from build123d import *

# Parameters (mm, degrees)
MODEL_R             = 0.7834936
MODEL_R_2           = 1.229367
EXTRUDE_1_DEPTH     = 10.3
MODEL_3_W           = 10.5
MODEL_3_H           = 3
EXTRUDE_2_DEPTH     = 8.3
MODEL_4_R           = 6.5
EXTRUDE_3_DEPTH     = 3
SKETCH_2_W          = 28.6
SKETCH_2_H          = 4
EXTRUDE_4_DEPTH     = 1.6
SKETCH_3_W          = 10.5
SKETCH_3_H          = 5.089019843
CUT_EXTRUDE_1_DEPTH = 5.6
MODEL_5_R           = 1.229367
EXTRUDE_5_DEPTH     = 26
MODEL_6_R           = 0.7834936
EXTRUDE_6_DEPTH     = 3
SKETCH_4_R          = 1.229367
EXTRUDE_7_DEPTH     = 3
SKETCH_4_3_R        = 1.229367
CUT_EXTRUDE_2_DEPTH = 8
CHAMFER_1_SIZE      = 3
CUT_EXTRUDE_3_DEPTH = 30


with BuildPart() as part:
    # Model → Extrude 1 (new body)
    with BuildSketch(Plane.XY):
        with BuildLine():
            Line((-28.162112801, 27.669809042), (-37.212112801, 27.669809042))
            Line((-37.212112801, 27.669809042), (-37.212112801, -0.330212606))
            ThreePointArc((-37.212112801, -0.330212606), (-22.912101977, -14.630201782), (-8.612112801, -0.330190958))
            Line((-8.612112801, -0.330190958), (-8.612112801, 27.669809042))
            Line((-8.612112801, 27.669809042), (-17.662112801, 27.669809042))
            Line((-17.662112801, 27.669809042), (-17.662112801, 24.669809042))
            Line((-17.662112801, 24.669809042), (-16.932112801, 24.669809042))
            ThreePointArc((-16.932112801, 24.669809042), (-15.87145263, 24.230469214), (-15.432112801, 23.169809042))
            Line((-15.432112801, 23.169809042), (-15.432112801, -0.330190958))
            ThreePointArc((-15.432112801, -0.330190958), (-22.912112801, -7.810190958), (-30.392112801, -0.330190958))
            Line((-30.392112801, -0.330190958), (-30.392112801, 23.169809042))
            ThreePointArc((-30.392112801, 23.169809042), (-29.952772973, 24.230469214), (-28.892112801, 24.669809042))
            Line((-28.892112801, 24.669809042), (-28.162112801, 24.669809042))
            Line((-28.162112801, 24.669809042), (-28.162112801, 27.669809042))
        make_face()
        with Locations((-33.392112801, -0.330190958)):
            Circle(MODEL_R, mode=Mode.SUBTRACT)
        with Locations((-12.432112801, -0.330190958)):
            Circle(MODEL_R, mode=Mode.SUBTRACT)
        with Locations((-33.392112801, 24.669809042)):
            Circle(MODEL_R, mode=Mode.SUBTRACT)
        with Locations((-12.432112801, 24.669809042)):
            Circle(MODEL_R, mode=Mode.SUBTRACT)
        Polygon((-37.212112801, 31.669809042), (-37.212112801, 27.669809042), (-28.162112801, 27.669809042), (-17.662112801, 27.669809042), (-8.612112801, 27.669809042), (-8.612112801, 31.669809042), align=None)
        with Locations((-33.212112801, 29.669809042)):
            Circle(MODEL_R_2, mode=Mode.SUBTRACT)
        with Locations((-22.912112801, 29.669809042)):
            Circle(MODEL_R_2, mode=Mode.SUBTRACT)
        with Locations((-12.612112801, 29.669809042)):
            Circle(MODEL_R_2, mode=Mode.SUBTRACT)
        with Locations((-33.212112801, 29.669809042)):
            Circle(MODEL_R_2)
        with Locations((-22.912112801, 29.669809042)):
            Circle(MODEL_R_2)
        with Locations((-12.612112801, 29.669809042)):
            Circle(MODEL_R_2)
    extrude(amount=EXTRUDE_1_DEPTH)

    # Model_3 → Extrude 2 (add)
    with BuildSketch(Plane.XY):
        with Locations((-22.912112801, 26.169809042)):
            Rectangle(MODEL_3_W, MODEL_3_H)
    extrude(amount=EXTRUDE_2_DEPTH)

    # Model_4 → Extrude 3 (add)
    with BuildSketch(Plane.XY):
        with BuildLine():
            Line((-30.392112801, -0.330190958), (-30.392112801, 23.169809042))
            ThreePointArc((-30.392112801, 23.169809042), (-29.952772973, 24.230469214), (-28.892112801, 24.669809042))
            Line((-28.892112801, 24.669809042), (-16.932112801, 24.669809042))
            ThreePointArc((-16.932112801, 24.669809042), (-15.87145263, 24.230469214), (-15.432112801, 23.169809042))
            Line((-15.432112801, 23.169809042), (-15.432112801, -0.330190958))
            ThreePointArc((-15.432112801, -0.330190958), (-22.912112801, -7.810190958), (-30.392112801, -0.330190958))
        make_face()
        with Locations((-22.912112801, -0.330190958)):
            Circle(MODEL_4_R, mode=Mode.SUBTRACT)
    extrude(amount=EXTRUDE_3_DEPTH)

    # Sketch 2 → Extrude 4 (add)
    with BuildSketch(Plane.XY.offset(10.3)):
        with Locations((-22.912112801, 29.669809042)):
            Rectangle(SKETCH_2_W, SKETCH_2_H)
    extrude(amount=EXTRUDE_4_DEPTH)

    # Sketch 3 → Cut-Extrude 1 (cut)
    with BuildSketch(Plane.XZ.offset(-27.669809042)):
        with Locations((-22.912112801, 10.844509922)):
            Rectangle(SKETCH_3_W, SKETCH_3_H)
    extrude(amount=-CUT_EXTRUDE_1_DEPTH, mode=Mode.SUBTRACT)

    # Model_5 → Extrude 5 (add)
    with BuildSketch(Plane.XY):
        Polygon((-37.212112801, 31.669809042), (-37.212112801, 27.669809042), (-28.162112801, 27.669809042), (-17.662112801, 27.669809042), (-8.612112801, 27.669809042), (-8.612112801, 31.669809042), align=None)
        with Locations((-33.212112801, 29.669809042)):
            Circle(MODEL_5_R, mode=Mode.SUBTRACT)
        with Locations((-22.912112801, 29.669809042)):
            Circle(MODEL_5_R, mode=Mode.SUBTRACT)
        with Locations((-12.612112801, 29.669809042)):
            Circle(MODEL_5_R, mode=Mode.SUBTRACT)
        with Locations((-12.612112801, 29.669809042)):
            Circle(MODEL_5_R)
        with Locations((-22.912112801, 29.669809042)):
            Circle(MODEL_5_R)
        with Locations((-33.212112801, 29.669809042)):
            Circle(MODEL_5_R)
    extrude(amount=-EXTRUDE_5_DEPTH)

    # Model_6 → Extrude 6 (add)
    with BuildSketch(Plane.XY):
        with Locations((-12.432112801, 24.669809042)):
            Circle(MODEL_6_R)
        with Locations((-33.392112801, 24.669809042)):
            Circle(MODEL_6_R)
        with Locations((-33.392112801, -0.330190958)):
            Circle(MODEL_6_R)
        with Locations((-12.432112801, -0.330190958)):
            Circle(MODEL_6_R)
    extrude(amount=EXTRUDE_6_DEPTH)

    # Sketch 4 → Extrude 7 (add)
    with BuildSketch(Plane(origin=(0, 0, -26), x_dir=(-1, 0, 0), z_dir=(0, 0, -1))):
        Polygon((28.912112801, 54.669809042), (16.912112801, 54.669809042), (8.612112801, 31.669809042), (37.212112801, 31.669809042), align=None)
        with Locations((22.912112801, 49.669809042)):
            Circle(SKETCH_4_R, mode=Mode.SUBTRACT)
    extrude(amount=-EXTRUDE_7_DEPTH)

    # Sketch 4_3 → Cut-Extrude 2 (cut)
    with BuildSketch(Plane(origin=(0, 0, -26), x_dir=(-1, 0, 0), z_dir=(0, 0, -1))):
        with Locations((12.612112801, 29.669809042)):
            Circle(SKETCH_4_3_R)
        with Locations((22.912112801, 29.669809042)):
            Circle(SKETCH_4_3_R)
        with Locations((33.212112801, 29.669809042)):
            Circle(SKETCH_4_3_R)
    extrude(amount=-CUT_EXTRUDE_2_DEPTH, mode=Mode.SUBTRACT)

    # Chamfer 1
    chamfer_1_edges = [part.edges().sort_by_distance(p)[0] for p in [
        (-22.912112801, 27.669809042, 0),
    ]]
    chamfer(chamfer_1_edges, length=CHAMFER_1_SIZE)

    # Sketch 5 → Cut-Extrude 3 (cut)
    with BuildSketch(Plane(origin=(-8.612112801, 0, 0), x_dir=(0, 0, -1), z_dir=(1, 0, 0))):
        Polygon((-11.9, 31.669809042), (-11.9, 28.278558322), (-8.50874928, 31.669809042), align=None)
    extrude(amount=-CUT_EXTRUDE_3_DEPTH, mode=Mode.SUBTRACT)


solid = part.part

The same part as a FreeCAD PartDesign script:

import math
import FreeCAD as App
import Part
import Sketcher

V = App.Vector


def edges_at(feature, points):
    """Names of the edges that pass closest to the given points."""
    edges = feature.Shape.Edges
    near = lambda p: min(range(len(edges)), key=lambda i: edges[i].distToShape(Part.Vertex(*p))[0])
    return sorted({f"Edge{near(p) + 1}" for p in points})


def add_polygon(sketch, points):
    """Adds a closed chain of lines whose ends are joined by coincident constraints."""
    first, n = sketch.GeometryCount, len(points)
    for a, b in zip(points, points[1:] + points[:1]):
        sketch.addGeometry(Part.LineSegment(App.Vector(*a, 0), App.Vector(*b, 0)), False)
    for i in range(n):
        sketch.addConstraint(Sketcher.Constraint("Coincident", first + i, 2, first + (i + 1) % n, 1))

doc = App.newDocument("Part")
body = doc.addObject("PartDesign::Body", "Body")

# Sketch on XY plane
sketch1 = body.newObject("Sketcher::SketchObject", "Sketch")
sketch1.AttachmentSupport = (doc.getObject("XY_Plane"), [""])
sketch1.MapMode = "FlatFace"
sketch1.addGeometry(Part.ArcOfCircle(Part.Circle(V(-22.912113, -0.330202, 0), V(0, 0, 1), 14.3), math.radians(-179.999957), math.radians(0.000043)), False)
sketch1.addGeometry(Part.LineSegment(V(-8.612113, -0.330191, 0), V(-8.612113, 31.669809, 0)), False)
sketch1.addGeometry(Part.LineSegment(V(-8.612113, 31.669809, 0), V(-37.212113, 31.669809, 0)), False)
sketch1.addGeometry(Part.LineSegment(V(-37.212113, 31.669809, 0), V(-37.212113, -0.330213, 0)), False)
sketch1.addGeometry(Part.Circle(V(-33.392113, -0.330191, 0), V(0, 0, 1), 0.783494), False)
sketch1.addGeometry(Part.Circle(V(-12.432113, -0.330191, 0), V(0, 0, 1), 0.783494), False)
sketch1.addGeometry(Part.LineSegment(V(-28.162113, 24.669809, 0), V(-28.162113, 27.669809, 0)), False)
sketch1.addGeometry(Part.LineSegment(V(-28.162113, 27.669809, 0), V(-17.662113, 27.669809, 0)), False)
sketch1.addGeometry(Part.LineSegment(V(-17.662113, 27.669809, 0), V(-17.662113, 24.669809, 0)), False)
sketch1.addGeometry(Part.LineSegment(V(-17.662113, 24.669809, 0), V(-16.932113, 24.669809, 0)), False)
sketch1.addGeometry(Part.ArcOfCircle(Part.Circle(V(-16.932113, 23.169809, 0), V(0, 0, 1), 1.5), math.radians(0), math.radians(90)), False)
sketch1.addGeometry(Part.LineSegment(V(-15.432113, 23.169809, 0), V(-15.432113, -0.330191, 0)), False)
sketch1.addGeometry(Part.ArcOfCircle(Part.Circle(V(-22.912113, -0.330191, 0), V(0, 0, 1), 7.48), math.radians(180), math.radians(360)), False)
sketch1.addGeometry(Part.LineSegment(V(-30.392113, -0.330191, 0), V(-30.392113, 23.169809, 0)), False)
sketch1.addGeometry(Part.ArcOfCircle(Part.Circle(V(-28.892113, 23.169809, 0), V(0, 0, 1), 1.5), math.radians(90), math.radians(180)), False)
sketch1.addGeometry(Part.LineSegment(V(-28.892113, 24.669809, 0), V(-28.162113, 24.669809, 0)), False)
sketch1.addGeometry(Part.Circle(V(-33.392113, 24.669809, 0), V(0, 0, 1), 0.783494), False)
sketch1.addGeometry(Part.Circle(V(-12.432113, 24.669809, 0), V(0, 0, 1), 0.783494), False)
sketch1.addConstraint(Sketcher.Constraint("Tangent", 0, 2, 1, 1))
sketch1.addConstraint(Sketcher.Constraint("Coincident", 1, 2, 2, 1))
sketch1.addConstraint(Sketcher.Constraint("Coincident", 2, 2, 3, 1))
sketch1.addConstraint(Sketcher.Constraint("Tangent", 3, 2, 0, 1))
sketch1.addConstraint(Sketcher.Constraint("Coincident", 6, 2, 7, 1))
sketch1.addConstraint(Sketcher.Constraint("Coincident", 7, 2, 8, 1))
sketch1.addConstraint(Sketcher.Constraint("Coincident", 8, 2, 9, 1))
sketch1.addConstraint(Sketcher.Constraint("Tangent", 9, 2, 10, 2))
sketch1.addConstraint(Sketcher.Constraint("Tangent", 10, 1, 11, 1))
sketch1.addConstraint(Sketcher.Constraint("Tangent", 11, 2, 12, 2))
sketch1.addConstraint(Sketcher.Constraint("Tangent", 12, 1, 13, 1))
sketch1.addConstraint(Sketcher.Constraint("Tangent", 13, 2, 14, 2))
sketch1.addConstraint(Sketcher.Constraint("Tangent", 14, 1, 15, 1))
sketch1.addConstraint(Sketcher.Constraint("Coincident", 15, 2, 6, 1))
sketch1.addConstraint(Sketcher.Constraint("Vertical", 1))
sketch1.addConstraint(Sketcher.Constraint("Horizontal", 2))
sketch1.addConstraint(Sketcher.Constraint("Vertical", 3))
sketch1.addConstraint(Sketcher.Constraint("Vertical", 6))
sketch1.addConstraint(Sketcher.Constraint("Horizontal", 7))
sketch1.addConstraint(Sketcher.Constraint("Vertical", 8))
sketch1.addConstraint(Sketcher.Constraint("Horizontal", 9))
sketch1.addConstraint(Sketcher.Constraint("Vertical", 11))
sketch1.addConstraint(Sketcher.Constraint("Vertical", 13))
sketch1.addConstraint(Sketcher.Constraint("Horizontal", 15))
sketch1.addConstraint(Sketcher.Constraint("Equal", 4, 5))
sketch1.addConstraint(Sketcher.Constraint("Equal", 10, 14))
sketch1.addConstraint(Sketcher.Constraint("Equal", 5, 16))
sketch1.addConstraint(Sketcher.Constraint("Equal", 16, 17))
sketch1.addConstraint(Sketcher.Constraint("Horizontal", 4, 3, 5, 3))
sketch1.addConstraint(Sketcher.Constraint("Horizontal", 5, 3, 12, 3))
sketch1.addConstraint(Sketcher.Constraint("Horizontal", 10, 3, 14, 3))
sketch1.addConstraint(Sketcher.Constraint("Horizontal", 16, 3, 17, 3))
sketch1.addConstraint(Sketcher.Constraint("Horizontal", 12, 3, 0, 2))
sketch1.addConstraint(Sketcher.Constraint("Horizontal", 17, 3, 8, 2))
sketch1.addConstraint(Sketcher.Constraint("Vertical", 0, 3, 12, 3))
sketch1.addConstraint(Sketcher.Constraint("Vertical", 4, 3, 16, 3))
sketch1.addConstraint(Sketcher.Constraint("Vertical", 5, 3, 17, 3))
sketch1.addConstraint(Sketcher.Constraint("Equal", 9, 15))
sketch1.addConstraint(Sketcher.Constraint("Radius", 0, 14.3))
sketch1.addConstraint(Sketcher.Constraint("Radius", 10, 1.5))
sketch1.addConstraint(Sketcher.Constraint("DistanceY", 1, 1, 1, 2, 32.0))
sketch1.addConstraint(Sketcher.Constraint("DistanceY", 6, 1, 6, 2, 3.0))
sketch1.addConstraint(Sketcher.Constraint("Radius", 12, 7.48))
sketch1.addConstraint(Sketcher.Constraint("DistanceX", 7, 1, 7, 2, 10.5))
sketch1.addConstraint(Sketcher.Constraint("DistanceY", 11, 2, 11, 1, 23.5))
sketch1.addConstraint(Sketcher.Constraint("DistanceX", 10, 1, 17, 3, 3.0))
sketch1.addConstraint(Sketcher.Constraint("DistanceX", 4, 3, 12, 1, 3.0))
sketch1.addConstraint(Sketcher.Constraint("Diameter", 4, 1.566987))
sketch1.addConstraint(Sketcher.Constraint("DistanceY", 0, 3, -1, 1, 0.330202))
sketch1.addConstraint(Sketcher.Constraint("DistanceX", 0, 3, -1, 1, 22.912113))
pad1 = body.newObject("PartDesign::Pad", "Pad")
pad1.Profile = sketch1
pad1.Length = 10.3

# Sketch on XY plane
sketch2 = body.newObject("Sketcher::SketchObject", "Sketch001")
sketch2.AttachmentSupport = (doc.getObject("XY_Plane"), [""])
sketch2.MapMode = "FlatFace"
add_polygon(sketch2, [(-28.162113, 27.669809), (-28.162113, 24.669809), (-17.662113, 24.669809), (-17.662113, 27.669809)])  # lines 0-3
sketch2.addConstraint(Sketcher.Constraint("Vertical", 0))
sketch2.addConstraint(Sketcher.Constraint("Horizontal", 1))
sketch2.addConstraint(Sketcher.Constraint("Vertical", 2))
sketch2.addConstraint(Sketcher.Constraint("Horizontal", 3))
sketch2.addConstraint(Sketcher.Constraint("DistanceY", 0, 2, 0, 1, 3.0))
sketch2.addConstraint(Sketcher.Constraint("DistanceX", 1, 1, 1, 2, 10.5))
sketch2.addConstraint(Sketcher.Constraint("DistanceY", -1, 1, 0, 2, 24.669809))
sketch2.addConstraint(Sketcher.Constraint("DistanceX", 0, 2, -1, 1, 28.162113))
pad2 = body.newObject("PartDesign::Pad", "Pad001")
pad2.Profile = sketch2
pad2.Length = 8.3

# Sketch on XY plane
sketch3 = body.newObject("Sketcher::SketchObject", "Sketch002")
sketch3.AttachmentSupport = (doc.getObject("XY_Plane"), [""])
sketch3.MapMode = "FlatFace"
sketch3.addGeometry(Part.LineSegment(V(-30.392113, 23.169809, 0), V(-30.392113, -0.330191, 0)), False)
sketch3.addGeometry(Part.ArcOfCircle(Part.Circle(V(-22.912113, -0.330191, 0), V(0, 0, 1), 7.48), math.radians(180), math.radians(360)), False)
sketch3.addGeometry(Part.LineSegment(V(-15.432113, -0.330191, 0), V(-15.432113, 23.169809, 0)), False)
sketch3.addGeometry(Part.ArcOfCircle(Part.Circle(V(-16.932113, 23.169809, 0), V(0, 0, 1), 1.5), math.radians(0), math.radians(90)), False)
sketch3.addGeometry(Part.LineSegment(V(-16.932113, 24.669809, 0), V(-28.892113, 24.669809, 0)), False)
sketch3.addGeometry(Part.ArcOfCircle(Part.Circle(V(-28.892113, 23.169809, 0), V(0, 0, 1), 1.5), math.radians(90), math.radians(180)), False)
sketch3.addGeometry(Part.Circle(V(-22.912113, -0.330191, 0), V(0, 0, 1), 6.5), False)
sketch3.addConstraint(Sketcher.Constraint("Tangent", 0, 2, 1, 1))
sketch3.addConstraint(Sketcher.Constraint("Tangent", 1, 2, 2, 1))
sketch3.addConstraint(Sketcher.Constraint("Tangent", 2, 2, 3, 1))
sketch3.addConstraint(Sketcher.Constraint("Tangent", 3, 2, 4, 1))
sketch3.addConstraint(Sketcher.Constraint("Tangent", 4, 2, 5, 1))
sketch3.addConstraint(Sketcher.Constraint("Tangent", 5, 2, 0, 1))
sketch3.addConstraint(Sketcher.Constraint("Vertical", 0))
sketch3.addConstraint(Sketcher.Constraint("Vertical", 2))
sketch3.addConstraint(Sketcher.Constraint("Horizontal", 4))
sketch3.addConstraint(Sketcher.Constraint("Coincident", 6, 3, 1, 3))
sketch3.addConstraint(Sketcher.Constraint("Equal", 3, 5))
sketch3.addConstraint(Sketcher.Constraint("Diameter", 6, 13.0))
sketch3.addConstraint(Sketcher.Constraint("Radius", 3, 1.5))
sketch3.addConstraint(Sketcher.Constraint("Radius", 1, 7.48))
sketch3.addConstraint(Sketcher.Constraint("DistanceY", 0, 2, 0, 1, 23.5))
sketch3.addConstraint(Sketcher.Constraint("DistanceY", 1, 3, -1, 1, 0.330191))
sketch3.addConstraint(Sketcher.Constraint("DistanceX", 1, 3, -1, 1, 22.912113))
pad3 = body.newObject("PartDesign::Pad", "Pad002")
pad3.Profile = sketch3
pad3.Length = 3

# Sketch on XY plane
sketch4 = body.newObject("Sketcher::SketchObject", "Sketch003")
sketch4.AttachmentSupport = (doc.getObject("XY_Plane"), [""])
sketch4.MapMode = "FlatFace"
sketch4.AttachmentOffset = App.Placement(V(0, 0, 10.3), App.Rotation())
add_polygon(sketch4, [(-37.212113, 31.669809), (-37.212113, 27.669809), (-8.612113, 27.669809), (-8.612113, 31.669809)])  # lines 0-3
sketch4.addConstraint(Sketcher.Constraint("Vertical", 0))
sketch4.addConstraint(Sketcher.Constraint("Horizontal", 1))
sketch4.addConstraint(Sketcher.Constraint("Vertical", 2))
sketch4.addConstraint(Sketcher.Constraint("Horizontal", 3))
sketch4.addConstraint(Sketcher.Constraint("DistanceY", 0, 2, 0, 1, 4.0))
sketch4.addConstraint(Sketcher.Constraint("DistanceX", 1, 1, 1, 2, 28.6))
sketch4.addConstraint(Sketcher.Constraint("DistanceY", -1, 1, 0, 2, 27.669809))
sketch4.addConstraint(Sketcher.Constraint("DistanceX", 0, 2, -1, 1, 37.212113))
pad4 = body.newObject("PartDesign::Pad", "Pad003")
pad4.Profile = sketch4
pad4.Length = 1.6

# Sketch on XZ plane
sketch5 = body.newObject("Sketcher::SketchObject", "Sketch004")
sketch5.AttachmentSupport = (doc.getObject("XZ_Plane"), [""])
sketch5.MapMode = "FlatFace"
sketch5.AttachmentOffset = App.Placement(V(0, 0, -27.669809), App.Rotation())
add_polygon(sketch5, [(-28.162113, 13.38902), (-28.162113, 8.3), (-17.662113, 8.3), (-17.662113, 13.38902)])  # lines 0-3
sketch5.addConstraint(Sketcher.Constraint("Vertical", 0))
sketch5.addConstraint(Sketcher.Constraint("Horizontal", 1))
sketch5.addConstraint(Sketcher.Constraint("Vertical", 2))
sketch5.addConstraint(Sketcher.Constraint("Horizontal", 3))
sketch5.addConstraint(Sketcher.Constraint("DistanceX", 1, 1, 1, 2, 10.5))
sketch5.addConstraint(Sketcher.Constraint("DistanceY", -1, 1, 0, 2, 8.3))
sketch5.addConstraint(Sketcher.Constraint("DistanceY", 0, 2, 0, 1, 5.08902))
sketch5.addConstraint(Sketcher.Constraint("DistanceX", 0, 2, -1, 1, 28.162113))
pocket1 = body.newObject("PartDesign::Pocket", "Pocket")
pocket1.Profile = sketch5
pocket1.Length = 5.6

# Sketch on XY plane
sketch6 = body.newObject("Sketcher::SketchObject", "Sketch005")
sketch6.AttachmentSupport = (doc.getObject("XY_Plane"), [""])
sketch6.MapMode = "FlatFace"
add_polygon(sketch6, [(-37.212113, 31.669809), (-37.212113, 27.669809), (-8.612113, 27.669809), (-8.612113, 31.669809)])  # lines 0-3
sketch6.addConstraint(Sketcher.Constraint("Vertical", 0))
sketch6.addConstraint(Sketcher.Constraint("Horizontal", 1))
sketch6.addConstraint(Sketcher.Constraint("Vertical", 2))
sketch6.addConstraint(Sketcher.Constraint("Horizontal", 3))
sketch6.addConstraint(Sketcher.Constraint("DistanceY", 0, 2, 0, 1, 4.0))
sketch6.addConstraint(Sketcher.Constraint("DistanceX", 1, 1, 1, 2, 28.6))
sketch6.addConstraint(Sketcher.Constraint("DistanceY", -1, 1, 0, 2, 27.669809))
sketch6.addConstraint(Sketcher.Constraint("DistanceX", 0, 2, -1, 1, 37.212113))
pad5 = body.newObject("PartDesign::Pad", "Pad004")
pad5.Profile = sketch6
pad5.Length = 26
pad5.Reversed = True

# Sketch on XY plane
sketch7 = body.newObject("Sketcher::SketchObject", "Sketch006")
sketch7.AttachmentSupport = (doc.getObject("XY_Plane"), [""])
sketch7.MapMode = "FlatFace"
sketch7.addGeometry(Part.Circle(V(-12.432113, 24.669809, 0), V(0, 0, 1), 0.783494), False)
sketch7.addGeometry(Part.Circle(V(-33.392113, 24.669809, 0), V(0, 0, 1), 0.783494), False)
sketch7.addGeometry(Part.Circle(V(-33.392113, -0.330191, 0), V(0, 0, 1), 0.783494), False)
sketch7.addGeometry(Part.Circle(V(-12.432113, -0.330191, 0), V(0, 0, 1), 0.783494), False)
sketch7.addConstraint(Sketcher.Constraint("Equal", 0, 1))
sketch7.addConstraint(Sketcher.Constraint("Equal", 1, 2))
sketch7.addConstraint(Sketcher.Constraint("Equal", 2, 3))
sketch7.addConstraint(Sketcher.Constraint("Horizontal", 0, 3, 1, 3))
sketch7.addConstraint(Sketcher.Constraint("Horizontal", 2, 3, 3, 3))
sketch7.addConstraint(Sketcher.Constraint("Vertical", 1, 3, 2, 3))
sketch7.addConstraint(Sketcher.Constraint("Vertical", 0, 3, 3, 3))
sketch7.addConstraint(Sketcher.Constraint("DistanceY", 2, 3, 1, 3, 25.0))
sketch7.addConstraint(Sketcher.Constraint("DistanceX", 1, 3, 0, 3, 20.96))
sketch7.addConstraint(Sketcher.Constraint("Diameter", 0, 1.566987))
sketch7.addConstraint(Sketcher.Constraint("DistanceY", -1, 1, 0, 3, 24.669809))
sketch7.addConstraint(Sketcher.Constraint("DistanceX", 0, 3, -1, 1, 12.432113))
pad6 = body.newObject("PartDesign::Pad", "Pad005")
pad6.Profile = sketch7
pad6.Length = 3

# Sketch on XY plane
sketch8 = body.newObject("Sketcher::SketchObject", "Sketch007")
sketch8.AttachmentSupport = (doc.getObject("XY_Plane"), [""])
sketch8.MapMode = "FlatFace"
sketch8.AttachmentOffset = App.Placement(V(0, 0, -26), App.Rotation())
add_polygon(sketch8, [(-28.912113, 54.669809), (-16.912113, 54.669809), (-8.612113, 31.669809), (-37.212113, 31.669809)])  # lines 0-3
sketch8.addGeometry(Part.Circle(V(-22.912113, 49.669809, 0), V(0, 0, 1), 1.229367), False)  # 4
sketch8.addConstraint(Sketcher.Constraint("Horizontal", 0))
sketch8.addConstraint(Sketcher.Constraint("Horizontal", 2))
sketch8.addConstraint(Sketcher.Constraint("Equal", 1, 3))
sketch8.addConstraint(Sketcher.Constraint("DistanceX", 0, 1, 0, 2, 12.0))
sketch8.addConstraint(Sketcher.Constraint("DistanceX", 2, 2, 2, 1, 28.6))
sketch8.addConstraint(Sketcher.Constraint("DistanceX", 4, 3, 0, 2, 6.0))
sketch8.addConstraint(Sketcher.Constraint("DistanceY", 4, 3, 0, 2, 5.0))
sketch8.addConstraint(Sketcher.Constraint("DistanceY", 1, 2, 4, 3, 18.0))
sketch8.addConstraint(Sketcher.Constraint("Diameter", 4, 2.458734))
sketch8.addConstraint(Sketcher.Constraint("DistanceY", -1, 1, 4, 3, 49.669809))
sketch8.addConstraint(Sketcher.Constraint("DistanceX", 4, 3, -1, 1, 22.912113))
pad7 = body.newObject("PartDesign::Pad", "Pad006")
pad7.Profile = sketch8
pad7.Length = 3

# Sketch on XY plane
sketch9 = body.newObject("Sketcher::SketchObject", "Sketch008")
sketch9.AttachmentSupport = (doc.getObject("XY_Plane"), [""])
sketch9.MapMode = "FlatFace"
sketch9.AttachmentOffset = App.Placement(V(0, 0, -26), App.Rotation())
sketch9.addGeometry(Part.Circle(V(-12.612113, 29.669809, 0), V(0, 0, 1), 1.229367), False)
sketch9.addGeometry(Part.Circle(V(-22.912113, 29.669809, 0), V(0, 0, 1), 1.229367), False)
sketch9.addGeometry(Part.Circle(V(-33.212113, 29.669809, 0), V(0, 0, 1), 1.229367), False)
sketch9.addConstraint(Sketcher.Constraint("Equal", 0, 1))
sketch9.addConstraint(Sketcher.Constraint("Equal", 1, 2))
sketch9.addConstraint(Sketcher.Constraint("Horizontal", 0, 3, 1, 3))
sketch9.addConstraint(Sketcher.Constraint("Horizontal", 1, 3, 2, 3))
sketch9.addConstraint(Sketcher.Constraint("DistanceX", 1, 3, 0, 3, 10.3))
sketch9.addConstraint(Sketcher.Constraint("DistanceX", 2, 3, 1, 3, 10.3))
sketch9.addConstraint(Sketcher.Constraint("Diameter", 0, 2.458734))
sketch9.addConstraint(Sketcher.Constraint("DistanceY", -1, 1, 0, 3, 29.669809))
sketch9.addConstraint(Sketcher.Constraint("DistanceX", 0, 3, -1, 1, 12.612113))
pocket2 = body.newObject("PartDesign::Pocket", "Pocket001")
pocket2.Profile = sketch9
pocket2.Length = 8
pocket2.Reversed = True
doc.recompute()

chamfer = body.newObject("PartDesign::Chamfer", "Chamfer")
chamfer.Base = (pocket2, edges_at(pocket2, [(-22.912, 27.67, 0)]))
chamfer.Size = 3

# Sketch on YZ plane
sketch10 = body.newObject("Sketcher::SketchObject", "Sketch009")
sketch10.AttachmentSupport = (doc.getObject("YZ_Plane"), [""])
sketch10.MapMode = "FlatFace"
sketch10.AttachmentOffset = App.Placement(V(0, 0, -8.612113), App.Rotation())
add_polygon(sketch10, [(31.669809, 11.9), (28.278558, 11.9), (31.669809, 8.508749)])  # lines 0-2
sketch10.addConstraint(Sketcher.Constraint("Horizontal", 0))
sketch10.addConstraint(Sketcher.Constraint("Vertical", 2))
sketch10.addConstraint(Sketcher.Constraint("Equal", 0, 2))
sketch10.addConstraint(Sketcher.Constraint("DistanceY", -1, 1, 0, 2, 11.9))
sketch10.addConstraint(Sketcher.Constraint("DistanceX", 0, 2, 0, 1, 3.391251))
sketch10.addConstraint(Sketcher.Constraint("DistanceX", -1, 1, 0, 2, 28.278558))
pocket3 = body.newObject("PartDesign::Pocket", "Pocket002")
pocket3.Profile = sketch10
pocket3.Length = 30

doc.recompute()
